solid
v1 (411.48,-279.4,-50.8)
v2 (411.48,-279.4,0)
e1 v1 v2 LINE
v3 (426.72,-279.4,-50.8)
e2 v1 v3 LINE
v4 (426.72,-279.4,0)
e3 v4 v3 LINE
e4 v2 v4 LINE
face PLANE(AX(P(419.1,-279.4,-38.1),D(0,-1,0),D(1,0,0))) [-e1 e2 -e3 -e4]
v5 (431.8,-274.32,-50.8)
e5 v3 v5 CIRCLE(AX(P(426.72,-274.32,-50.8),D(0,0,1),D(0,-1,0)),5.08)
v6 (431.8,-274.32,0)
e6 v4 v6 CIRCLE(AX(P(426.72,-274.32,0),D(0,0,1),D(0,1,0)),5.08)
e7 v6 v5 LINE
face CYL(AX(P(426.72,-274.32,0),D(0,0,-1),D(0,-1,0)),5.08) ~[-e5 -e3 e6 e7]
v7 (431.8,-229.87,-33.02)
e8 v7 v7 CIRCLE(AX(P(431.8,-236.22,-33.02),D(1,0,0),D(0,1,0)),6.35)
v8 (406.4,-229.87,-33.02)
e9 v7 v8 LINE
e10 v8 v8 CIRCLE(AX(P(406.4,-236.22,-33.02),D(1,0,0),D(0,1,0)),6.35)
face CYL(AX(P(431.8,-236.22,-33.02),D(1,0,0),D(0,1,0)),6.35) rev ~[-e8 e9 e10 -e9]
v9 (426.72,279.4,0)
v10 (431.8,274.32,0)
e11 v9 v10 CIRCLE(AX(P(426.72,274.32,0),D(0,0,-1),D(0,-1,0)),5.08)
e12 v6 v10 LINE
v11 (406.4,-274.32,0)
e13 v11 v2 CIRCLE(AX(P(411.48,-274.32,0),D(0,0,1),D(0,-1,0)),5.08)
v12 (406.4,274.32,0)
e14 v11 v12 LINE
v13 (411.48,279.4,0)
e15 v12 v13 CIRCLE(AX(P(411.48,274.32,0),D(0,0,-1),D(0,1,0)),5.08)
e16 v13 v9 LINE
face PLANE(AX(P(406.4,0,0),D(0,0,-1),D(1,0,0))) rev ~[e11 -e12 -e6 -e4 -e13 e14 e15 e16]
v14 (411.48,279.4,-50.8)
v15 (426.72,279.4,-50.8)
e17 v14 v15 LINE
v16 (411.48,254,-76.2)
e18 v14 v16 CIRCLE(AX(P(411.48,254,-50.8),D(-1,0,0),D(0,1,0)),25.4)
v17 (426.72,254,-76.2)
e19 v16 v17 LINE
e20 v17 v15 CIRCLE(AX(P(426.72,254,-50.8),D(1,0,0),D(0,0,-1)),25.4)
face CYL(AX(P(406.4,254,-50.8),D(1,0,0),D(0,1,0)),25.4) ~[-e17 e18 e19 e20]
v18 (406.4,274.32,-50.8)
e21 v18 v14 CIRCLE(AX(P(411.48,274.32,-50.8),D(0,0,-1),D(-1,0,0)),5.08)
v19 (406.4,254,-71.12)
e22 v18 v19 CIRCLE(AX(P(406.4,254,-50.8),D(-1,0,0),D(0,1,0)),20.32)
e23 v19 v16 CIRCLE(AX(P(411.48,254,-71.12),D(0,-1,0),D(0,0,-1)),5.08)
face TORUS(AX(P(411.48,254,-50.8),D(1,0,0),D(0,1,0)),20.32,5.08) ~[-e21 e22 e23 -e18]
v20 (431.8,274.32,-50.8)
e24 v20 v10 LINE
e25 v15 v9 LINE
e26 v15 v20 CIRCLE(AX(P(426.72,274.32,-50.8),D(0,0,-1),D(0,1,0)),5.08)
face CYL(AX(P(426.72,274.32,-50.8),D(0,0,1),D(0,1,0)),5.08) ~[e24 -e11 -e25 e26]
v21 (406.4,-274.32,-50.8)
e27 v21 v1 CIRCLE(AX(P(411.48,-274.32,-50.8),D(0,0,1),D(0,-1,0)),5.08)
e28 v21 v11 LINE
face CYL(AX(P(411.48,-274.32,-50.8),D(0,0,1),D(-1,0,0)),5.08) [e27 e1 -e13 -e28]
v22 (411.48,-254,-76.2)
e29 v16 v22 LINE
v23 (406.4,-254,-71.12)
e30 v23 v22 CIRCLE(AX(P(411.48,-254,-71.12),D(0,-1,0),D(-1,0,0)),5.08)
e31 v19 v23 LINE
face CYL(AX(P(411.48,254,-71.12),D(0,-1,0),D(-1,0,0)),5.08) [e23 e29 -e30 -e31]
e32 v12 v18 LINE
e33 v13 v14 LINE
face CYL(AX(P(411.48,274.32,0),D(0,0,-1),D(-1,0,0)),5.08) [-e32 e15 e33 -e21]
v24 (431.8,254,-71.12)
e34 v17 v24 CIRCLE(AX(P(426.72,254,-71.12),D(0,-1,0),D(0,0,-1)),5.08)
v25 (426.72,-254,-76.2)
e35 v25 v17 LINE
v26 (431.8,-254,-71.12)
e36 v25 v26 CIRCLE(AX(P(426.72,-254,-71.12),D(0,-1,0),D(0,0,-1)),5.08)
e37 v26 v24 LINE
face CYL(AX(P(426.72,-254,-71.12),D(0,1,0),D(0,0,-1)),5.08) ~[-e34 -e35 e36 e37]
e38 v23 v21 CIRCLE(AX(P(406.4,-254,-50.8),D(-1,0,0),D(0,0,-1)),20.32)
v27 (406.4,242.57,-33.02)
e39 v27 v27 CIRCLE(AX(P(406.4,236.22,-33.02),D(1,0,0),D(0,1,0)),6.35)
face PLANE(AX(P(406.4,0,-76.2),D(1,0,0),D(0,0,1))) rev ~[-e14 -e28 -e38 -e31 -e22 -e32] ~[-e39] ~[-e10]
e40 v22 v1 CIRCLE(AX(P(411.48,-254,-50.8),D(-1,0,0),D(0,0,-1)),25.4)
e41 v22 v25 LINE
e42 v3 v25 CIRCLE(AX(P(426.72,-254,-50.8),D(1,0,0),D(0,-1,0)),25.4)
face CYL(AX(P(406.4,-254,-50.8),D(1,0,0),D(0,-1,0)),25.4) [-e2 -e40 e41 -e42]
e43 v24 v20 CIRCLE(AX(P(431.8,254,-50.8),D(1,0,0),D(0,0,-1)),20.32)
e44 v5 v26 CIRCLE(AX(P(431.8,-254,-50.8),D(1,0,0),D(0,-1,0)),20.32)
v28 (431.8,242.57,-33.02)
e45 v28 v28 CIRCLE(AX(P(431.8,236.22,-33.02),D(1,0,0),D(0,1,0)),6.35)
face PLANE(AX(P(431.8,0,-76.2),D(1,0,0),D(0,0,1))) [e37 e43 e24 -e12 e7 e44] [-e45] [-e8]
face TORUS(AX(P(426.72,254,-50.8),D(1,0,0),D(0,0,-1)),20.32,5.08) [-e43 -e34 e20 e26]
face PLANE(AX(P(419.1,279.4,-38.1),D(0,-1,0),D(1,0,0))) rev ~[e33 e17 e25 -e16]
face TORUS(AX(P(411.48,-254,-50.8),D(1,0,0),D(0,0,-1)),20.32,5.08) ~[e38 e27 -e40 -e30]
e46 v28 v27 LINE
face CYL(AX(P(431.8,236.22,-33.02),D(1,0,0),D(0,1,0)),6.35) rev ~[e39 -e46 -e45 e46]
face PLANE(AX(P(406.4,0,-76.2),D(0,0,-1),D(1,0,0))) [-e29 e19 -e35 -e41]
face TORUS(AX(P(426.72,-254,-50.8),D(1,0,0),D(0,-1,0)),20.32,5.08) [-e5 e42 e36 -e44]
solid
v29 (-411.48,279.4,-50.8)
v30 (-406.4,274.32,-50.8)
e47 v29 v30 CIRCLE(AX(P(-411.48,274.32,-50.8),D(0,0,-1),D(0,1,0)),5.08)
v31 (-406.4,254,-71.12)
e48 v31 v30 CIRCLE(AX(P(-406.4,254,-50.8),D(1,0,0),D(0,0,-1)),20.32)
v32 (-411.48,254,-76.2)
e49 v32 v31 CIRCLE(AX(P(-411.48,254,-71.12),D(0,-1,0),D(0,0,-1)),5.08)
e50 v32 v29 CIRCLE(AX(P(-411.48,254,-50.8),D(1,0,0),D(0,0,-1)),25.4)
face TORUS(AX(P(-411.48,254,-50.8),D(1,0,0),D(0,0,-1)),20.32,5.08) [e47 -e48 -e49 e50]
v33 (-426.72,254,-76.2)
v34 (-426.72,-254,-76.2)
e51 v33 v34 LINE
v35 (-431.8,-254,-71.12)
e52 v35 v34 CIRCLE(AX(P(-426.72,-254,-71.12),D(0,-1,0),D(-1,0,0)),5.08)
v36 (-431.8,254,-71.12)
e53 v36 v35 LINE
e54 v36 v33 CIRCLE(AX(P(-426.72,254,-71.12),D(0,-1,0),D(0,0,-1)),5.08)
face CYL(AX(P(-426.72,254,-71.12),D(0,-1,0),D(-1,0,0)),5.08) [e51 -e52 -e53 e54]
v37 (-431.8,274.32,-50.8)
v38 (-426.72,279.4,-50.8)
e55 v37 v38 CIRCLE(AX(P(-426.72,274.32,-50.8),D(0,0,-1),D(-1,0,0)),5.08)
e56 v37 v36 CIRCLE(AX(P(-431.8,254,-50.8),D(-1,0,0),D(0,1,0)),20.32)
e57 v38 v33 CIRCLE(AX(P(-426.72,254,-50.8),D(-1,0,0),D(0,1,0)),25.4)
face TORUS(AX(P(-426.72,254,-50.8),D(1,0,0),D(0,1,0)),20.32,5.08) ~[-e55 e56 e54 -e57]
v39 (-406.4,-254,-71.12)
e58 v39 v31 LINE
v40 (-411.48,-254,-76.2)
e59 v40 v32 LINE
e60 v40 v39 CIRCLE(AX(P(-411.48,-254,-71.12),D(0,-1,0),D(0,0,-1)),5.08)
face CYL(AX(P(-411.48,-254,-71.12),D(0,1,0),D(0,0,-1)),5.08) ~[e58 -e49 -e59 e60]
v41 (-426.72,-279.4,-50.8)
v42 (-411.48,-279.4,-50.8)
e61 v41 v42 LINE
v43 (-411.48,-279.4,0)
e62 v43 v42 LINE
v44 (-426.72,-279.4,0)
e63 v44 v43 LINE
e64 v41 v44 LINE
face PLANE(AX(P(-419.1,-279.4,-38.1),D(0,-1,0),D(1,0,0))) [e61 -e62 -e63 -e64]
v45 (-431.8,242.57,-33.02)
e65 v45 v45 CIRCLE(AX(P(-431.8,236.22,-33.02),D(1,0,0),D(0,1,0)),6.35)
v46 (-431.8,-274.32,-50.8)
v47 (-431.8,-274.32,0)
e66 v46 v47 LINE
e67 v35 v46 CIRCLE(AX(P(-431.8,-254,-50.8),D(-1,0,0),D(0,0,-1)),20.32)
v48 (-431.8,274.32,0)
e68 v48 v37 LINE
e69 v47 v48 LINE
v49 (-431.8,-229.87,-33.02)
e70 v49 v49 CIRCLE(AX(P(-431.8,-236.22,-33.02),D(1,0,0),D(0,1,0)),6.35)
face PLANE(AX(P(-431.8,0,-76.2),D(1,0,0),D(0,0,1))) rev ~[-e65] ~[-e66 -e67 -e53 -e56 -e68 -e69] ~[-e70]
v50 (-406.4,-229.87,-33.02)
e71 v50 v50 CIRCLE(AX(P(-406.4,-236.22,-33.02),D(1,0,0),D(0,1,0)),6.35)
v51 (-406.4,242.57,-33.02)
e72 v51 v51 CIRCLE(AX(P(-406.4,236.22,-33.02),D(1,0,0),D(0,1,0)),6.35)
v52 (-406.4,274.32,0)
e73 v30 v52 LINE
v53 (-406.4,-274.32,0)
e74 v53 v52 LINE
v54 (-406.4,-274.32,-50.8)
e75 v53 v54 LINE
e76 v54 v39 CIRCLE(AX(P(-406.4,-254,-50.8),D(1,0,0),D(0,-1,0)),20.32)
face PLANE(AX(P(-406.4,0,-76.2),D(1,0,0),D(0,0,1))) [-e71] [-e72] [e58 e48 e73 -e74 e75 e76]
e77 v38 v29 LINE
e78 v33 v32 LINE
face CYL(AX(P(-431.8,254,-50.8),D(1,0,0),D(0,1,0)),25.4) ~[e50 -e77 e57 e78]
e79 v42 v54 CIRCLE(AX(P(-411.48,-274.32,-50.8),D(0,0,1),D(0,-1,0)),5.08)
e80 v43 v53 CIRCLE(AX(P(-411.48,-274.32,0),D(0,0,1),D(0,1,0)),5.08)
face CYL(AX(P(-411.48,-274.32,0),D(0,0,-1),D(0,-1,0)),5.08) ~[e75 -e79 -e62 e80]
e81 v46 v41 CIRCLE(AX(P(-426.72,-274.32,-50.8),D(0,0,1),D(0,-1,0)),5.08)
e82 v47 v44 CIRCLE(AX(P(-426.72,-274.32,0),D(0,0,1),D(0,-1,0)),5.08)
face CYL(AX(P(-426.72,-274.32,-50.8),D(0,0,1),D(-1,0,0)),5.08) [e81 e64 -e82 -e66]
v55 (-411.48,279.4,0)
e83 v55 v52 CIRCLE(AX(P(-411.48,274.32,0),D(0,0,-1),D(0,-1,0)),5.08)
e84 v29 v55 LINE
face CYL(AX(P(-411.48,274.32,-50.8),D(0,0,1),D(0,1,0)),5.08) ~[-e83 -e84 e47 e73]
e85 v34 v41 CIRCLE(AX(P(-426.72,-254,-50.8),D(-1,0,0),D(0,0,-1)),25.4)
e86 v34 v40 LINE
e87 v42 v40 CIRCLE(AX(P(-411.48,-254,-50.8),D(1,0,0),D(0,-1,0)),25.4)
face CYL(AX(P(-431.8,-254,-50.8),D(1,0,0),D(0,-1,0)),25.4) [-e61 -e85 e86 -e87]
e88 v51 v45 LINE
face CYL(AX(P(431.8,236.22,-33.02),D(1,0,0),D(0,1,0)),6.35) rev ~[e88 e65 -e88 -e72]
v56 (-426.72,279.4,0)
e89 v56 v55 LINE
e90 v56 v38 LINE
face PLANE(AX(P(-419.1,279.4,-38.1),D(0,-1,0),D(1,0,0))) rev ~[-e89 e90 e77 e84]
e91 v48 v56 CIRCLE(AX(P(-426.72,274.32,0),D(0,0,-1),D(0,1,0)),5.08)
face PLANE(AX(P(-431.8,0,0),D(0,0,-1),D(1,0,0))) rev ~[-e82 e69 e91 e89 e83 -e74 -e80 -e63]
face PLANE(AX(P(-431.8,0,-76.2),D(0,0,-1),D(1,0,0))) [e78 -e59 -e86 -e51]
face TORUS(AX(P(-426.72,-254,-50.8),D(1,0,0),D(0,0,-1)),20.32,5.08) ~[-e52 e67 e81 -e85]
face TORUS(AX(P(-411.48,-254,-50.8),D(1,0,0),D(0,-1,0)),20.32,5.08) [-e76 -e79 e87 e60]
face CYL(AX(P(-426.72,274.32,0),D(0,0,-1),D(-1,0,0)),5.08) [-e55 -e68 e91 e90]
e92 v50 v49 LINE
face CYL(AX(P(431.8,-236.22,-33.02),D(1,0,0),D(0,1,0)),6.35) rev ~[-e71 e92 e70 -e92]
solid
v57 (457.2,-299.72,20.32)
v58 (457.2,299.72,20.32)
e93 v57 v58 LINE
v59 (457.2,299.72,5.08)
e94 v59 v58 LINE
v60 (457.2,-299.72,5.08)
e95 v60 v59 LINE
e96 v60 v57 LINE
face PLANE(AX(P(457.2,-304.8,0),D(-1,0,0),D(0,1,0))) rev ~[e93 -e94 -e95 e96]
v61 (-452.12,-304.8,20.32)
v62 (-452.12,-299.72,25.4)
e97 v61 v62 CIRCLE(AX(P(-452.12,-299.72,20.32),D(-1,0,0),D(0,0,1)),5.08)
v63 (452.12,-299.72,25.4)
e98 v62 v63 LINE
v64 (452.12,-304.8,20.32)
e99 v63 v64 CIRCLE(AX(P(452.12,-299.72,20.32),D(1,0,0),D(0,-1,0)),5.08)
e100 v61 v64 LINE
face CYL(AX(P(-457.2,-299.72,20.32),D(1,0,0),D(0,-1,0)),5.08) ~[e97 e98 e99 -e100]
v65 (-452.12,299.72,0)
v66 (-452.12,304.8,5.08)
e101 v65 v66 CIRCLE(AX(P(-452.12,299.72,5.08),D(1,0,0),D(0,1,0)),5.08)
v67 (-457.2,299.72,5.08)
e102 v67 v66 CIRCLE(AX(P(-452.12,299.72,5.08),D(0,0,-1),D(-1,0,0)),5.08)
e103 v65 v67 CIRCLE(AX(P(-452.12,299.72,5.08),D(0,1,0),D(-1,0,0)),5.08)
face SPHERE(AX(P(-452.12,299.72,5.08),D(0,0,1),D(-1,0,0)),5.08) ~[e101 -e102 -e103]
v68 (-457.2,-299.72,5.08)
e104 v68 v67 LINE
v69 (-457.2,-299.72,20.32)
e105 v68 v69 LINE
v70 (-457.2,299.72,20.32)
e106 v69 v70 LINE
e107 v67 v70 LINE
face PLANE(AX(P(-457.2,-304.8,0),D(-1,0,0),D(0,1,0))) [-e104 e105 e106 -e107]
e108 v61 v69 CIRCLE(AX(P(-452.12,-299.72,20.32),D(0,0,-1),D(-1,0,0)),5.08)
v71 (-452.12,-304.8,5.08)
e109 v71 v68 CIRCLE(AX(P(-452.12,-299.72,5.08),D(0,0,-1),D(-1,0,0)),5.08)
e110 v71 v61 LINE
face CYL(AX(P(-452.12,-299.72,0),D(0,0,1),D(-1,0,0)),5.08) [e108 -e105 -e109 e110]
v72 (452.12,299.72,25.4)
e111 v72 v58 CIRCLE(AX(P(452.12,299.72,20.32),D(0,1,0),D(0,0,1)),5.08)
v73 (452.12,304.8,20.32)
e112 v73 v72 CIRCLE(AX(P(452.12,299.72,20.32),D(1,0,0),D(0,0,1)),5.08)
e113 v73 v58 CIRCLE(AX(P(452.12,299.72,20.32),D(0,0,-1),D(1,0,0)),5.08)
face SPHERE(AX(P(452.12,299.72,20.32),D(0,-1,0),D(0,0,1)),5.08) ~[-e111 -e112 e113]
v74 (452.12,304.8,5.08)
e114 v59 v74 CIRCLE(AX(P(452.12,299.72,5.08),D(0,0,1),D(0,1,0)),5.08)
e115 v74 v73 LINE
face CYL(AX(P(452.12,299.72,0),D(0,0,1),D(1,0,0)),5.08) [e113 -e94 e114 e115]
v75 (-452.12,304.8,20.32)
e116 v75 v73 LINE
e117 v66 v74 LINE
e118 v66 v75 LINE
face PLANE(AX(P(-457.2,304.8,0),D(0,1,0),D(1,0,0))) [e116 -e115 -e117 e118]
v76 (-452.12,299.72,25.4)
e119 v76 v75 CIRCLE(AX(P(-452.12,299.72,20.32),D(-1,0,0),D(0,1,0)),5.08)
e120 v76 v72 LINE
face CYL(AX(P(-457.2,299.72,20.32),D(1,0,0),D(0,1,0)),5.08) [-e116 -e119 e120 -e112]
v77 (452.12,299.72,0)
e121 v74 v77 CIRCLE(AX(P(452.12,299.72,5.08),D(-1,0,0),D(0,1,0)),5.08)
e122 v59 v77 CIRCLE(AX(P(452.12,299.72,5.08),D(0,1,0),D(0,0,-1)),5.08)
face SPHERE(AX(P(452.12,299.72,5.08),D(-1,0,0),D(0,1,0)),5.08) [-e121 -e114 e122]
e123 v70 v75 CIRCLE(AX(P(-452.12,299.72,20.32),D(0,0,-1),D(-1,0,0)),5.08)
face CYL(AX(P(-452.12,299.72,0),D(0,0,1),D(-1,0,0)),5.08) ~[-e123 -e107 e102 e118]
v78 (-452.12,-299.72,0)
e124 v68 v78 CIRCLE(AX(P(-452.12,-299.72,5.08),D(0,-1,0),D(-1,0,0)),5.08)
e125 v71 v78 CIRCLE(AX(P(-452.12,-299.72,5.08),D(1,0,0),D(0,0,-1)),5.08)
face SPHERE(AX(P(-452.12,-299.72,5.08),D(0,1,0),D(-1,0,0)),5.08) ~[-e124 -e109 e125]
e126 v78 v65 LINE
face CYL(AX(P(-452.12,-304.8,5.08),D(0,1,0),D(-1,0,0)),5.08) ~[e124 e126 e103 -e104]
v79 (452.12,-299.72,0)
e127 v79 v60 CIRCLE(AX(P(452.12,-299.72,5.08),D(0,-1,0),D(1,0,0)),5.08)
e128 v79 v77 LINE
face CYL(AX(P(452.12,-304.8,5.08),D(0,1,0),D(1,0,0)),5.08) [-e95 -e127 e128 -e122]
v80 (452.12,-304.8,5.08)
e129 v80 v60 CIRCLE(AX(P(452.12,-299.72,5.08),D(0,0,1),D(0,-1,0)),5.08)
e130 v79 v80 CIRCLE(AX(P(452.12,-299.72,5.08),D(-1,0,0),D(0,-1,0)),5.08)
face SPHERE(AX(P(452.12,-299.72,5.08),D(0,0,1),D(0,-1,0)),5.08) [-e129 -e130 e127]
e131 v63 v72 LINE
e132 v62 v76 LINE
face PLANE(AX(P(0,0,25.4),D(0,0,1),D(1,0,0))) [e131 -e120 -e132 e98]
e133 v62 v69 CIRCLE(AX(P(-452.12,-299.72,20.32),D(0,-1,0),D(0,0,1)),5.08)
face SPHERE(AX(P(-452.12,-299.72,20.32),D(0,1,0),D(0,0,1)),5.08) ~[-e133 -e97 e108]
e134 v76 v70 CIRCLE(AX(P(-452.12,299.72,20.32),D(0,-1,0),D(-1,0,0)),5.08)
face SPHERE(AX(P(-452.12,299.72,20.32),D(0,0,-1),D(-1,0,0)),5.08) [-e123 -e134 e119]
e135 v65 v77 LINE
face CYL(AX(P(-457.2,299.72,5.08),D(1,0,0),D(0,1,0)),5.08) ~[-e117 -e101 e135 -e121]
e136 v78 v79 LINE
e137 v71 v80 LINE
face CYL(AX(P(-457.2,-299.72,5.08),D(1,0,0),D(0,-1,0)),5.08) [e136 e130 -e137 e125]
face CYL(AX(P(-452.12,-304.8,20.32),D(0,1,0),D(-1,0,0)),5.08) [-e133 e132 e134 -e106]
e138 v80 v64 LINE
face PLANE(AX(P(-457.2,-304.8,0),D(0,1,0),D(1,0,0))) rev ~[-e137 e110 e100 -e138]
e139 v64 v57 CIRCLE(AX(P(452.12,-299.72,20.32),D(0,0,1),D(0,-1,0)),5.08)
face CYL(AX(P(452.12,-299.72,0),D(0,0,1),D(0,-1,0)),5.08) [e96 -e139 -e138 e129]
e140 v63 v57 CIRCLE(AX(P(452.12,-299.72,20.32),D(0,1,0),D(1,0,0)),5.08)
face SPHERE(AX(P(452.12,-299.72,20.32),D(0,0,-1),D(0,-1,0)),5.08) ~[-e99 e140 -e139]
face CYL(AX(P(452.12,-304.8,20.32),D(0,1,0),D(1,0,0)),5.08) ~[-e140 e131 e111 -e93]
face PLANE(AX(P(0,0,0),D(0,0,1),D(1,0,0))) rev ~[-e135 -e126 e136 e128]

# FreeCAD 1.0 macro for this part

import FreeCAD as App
import Part
import Sketcher
Q = App.Units.Quantity


def edges_at(feature, points):
    """Names of the edges that pass closest to the given points."""
    edges = feature.Shape.Edges
    near = lambda p: min(range(len(edges)), key=lambda i: edges[i].distToShape(Part.Vertex(*p))[0])
    return sorted({f"Edge{near(p) + 1}" for p in points})


def add_polygon(sketch, points):
    """Adds a closed chain of lines whose ends are joined by coincident constraints."""
    first, n = sketch.GeometryCount, len(points)
    for a, b in zip(points, points[1:] + points[:1]):
        sketch.addGeometry(Part.LineSegment(App.Vector(*a, 0), App.Vector(*b, 0)), False)
    for i in range(n):
        sketch.addConstraint(Sketcher.Constraint("Coincident", first + i, 2, first + (i + 1) % n, 1))

doc = App.newDocument("Part")
params = doc.addObject("Spreadsheet::Sheet", "Params")
for row, (alias, value) in enumerate([
    ("sketch1_width", "36 in"),
    ("sketch1_height", "24 in"),
    ("pad1_length", "1 in"),
    ("fillet_radius", "0.2 in"),
    ("sketch2_width", "1 in"),
    ("sketch2_height", "3 in"),
    ("pad2_length", "22 in"),
    ("fillet2_radius", "1 in"),
    ("fillet3_radius", "0.2 in"),
    ("sketch3_width", "1 in"),
    ("sketch3_height", "3 in"),
    ("pad3_length", "22 in"),
    ("fillet4_radius", "1 in"),
    ("fillet5_radius", "0.2 in"),
    ("sketch4_diameter", "0.5 in"),
    ("pad4_length", "34 in"),
], start=1):
    params.set(f"A{row}", alias)
    params.set(f"B{row}", "=" + value)
    params.setAlias(f"B{row}", alias)

body = doc.addObject("PartDesign::Body", "Body")

# Sketch on XY plane
sketch1 = body.newObject("Sketcher::SketchObject", "Sketch")
sketch1.AttachmentSupport = (doc.getObject("XY_Plane"), [""])
sketch1.MapMode = "FlatFace"
add_polygon(sketch1, [(-457, 305), (-457, -305), (457, -305), (457, 305)])  # lines 0-3
sketch1.addConstraint(Sketcher.Constraint("Vertical", 0))
sketch1.addConstraint(Sketcher.Constraint("Horizontal", 1))
sketch1.addConstraint(Sketcher.Constraint("Vertical", 2))
sketch1.addConstraint(Sketcher.Constraint("Horizontal", 3))
sketch1.addConstraint(Sketcher.Constraint("Symmetric", 0, 2, 2, 2, -1, 1))
sketch1.addConstraint(Sketcher.Constraint("DistanceX", 1, 1, 1, 2, Q("36 in")))
sketch1.addConstraint(Sketcher.Constraint("DistanceY", 0, 2, 0, 1, Q("24 in")))
sketch1.setExpression("Constraints[9]", "Params.sketch1_width")
sketch1.setExpression("Constraints[10]", "Params.sketch1_height")
pad1 = body.newObject("PartDesign::Pad", "Pad")
pad1.Profile = sketch1
pad1.setExpression("Length", "Params.pad1_length")
doc.recompute()

fillet = body.newObject("PartDesign::Fillet", "Fillet")
fillet.Base = (pad1, ["Edge1"])
fillet.UseAllEdges = True
fillet.setExpression("Radius", "Params.fillet_radius")
body2 = doc.addObject("PartDesign::Body", "Body001")

# Sketch on XZ plane
sketch2 = body2.newObject("Sketcher::SketchObject", "Sketch001")
sketch2.AttachmentSupport = (doc.getObject("XZ_Plane001"), [""])
sketch2.MapMode = "FlatFace"
add_polygon(sketch2, [(-432, 0), (-432, -76), (-406, -76), (-406, 0)])  # lines 0-3
sketch2.addConstraint(Sketcher.Constraint("Vertical", 0))
sketch2.addConstraint(Sketcher.Constraint("Horizontal", 1))
sketch2.addConstraint(Sketcher.Constraint("Vertical", 2))
sketch2.addConstraint(Sketcher.Constraint("Horizontal", 3))
sketch2.addConstraint(Sketcher.Constraint("PointOnObject", 2, 2, -1))
sketch2.addConstraint(Sketcher.Constraint("DistanceX", 1, 1, 1, 2, Q("1 in")))
sketch2.addConstraint(Sketcher.Constraint("DistanceY", 0, 2, 0, 1, Q("3 in")))
sketch2.addConstraint(Sketcher.Constraint("DistanceX", 0, 2, -1, 1, Q("17 in")))
sketch2.setExpression("Constraints[9]", "Params.sketch2_width")
sketch2.setExpression("Constraints[10]", "Params.sketch2_height")
pad2 = body2.newObject("PartDesign::Pad", "Pad001")
pad2.Profile = sketch2
pad2.setExpression("Length", "Params.pad2_length")
pad2.Midplane = True
doc.recompute()

fillet2 = body2.newObject("PartDesign::Fillet", "Fillet001")
fillet2.Base = (pad2, edges_at(pad2, [(-419.1, -279.4, -76.2), (-419.1, 279.4, -76.2)]))
fillet2.setExpression("Radius", "Params.fillet2_radius")
doc.recompute()

fillet3 = body2.newObject("PartDesign::Fillet", "Fillet002")
fillet3.Base = (fillet2, edges_at(fillet2, [
    (-406.4, -271.961, -68.761),
    (-406.4, 271.961, -68.761),
    (-431.8, 271.961, -68.761),
    (-431.8, -271.961, -68.761),
    (-406.4, 279.4, -25.4),
    (-406.4, 0, -76.2),
    (-406.4, -279.4, -25.4),
    (-419.1, -279.4, -50.8),
    (-419.1, 279.4, -50.8),
    (-431.8, 279.4, -25.4),
    (-419.1, -254, -76.2),
    (-431.8, -279.4, -25.4),
    (-419.1, 254, -76.2),
    (-431.8, 0, -76.2),
]))
fillet3.setExpression("Radius", "Params.fillet3_radius")
body3 = doc.addObject("PartDesign::Body", "Body002")

# Sketch on XZ plane
sketch3 = body3.newObject("Sketcher::SketchObject", "Sketch002")
sketch3.AttachmentSupport = (doc.getObject("XZ_Plane002"), [""])
sketch3.MapMode = "FlatFace"
add_polygon(sketch3, [(406, 0), (406, -76), (432, -76), (432, 0)])  # lines 0-3
sketch3.addConstraint(Sketcher.Constraint("Vertical", 0))
sketch3.addConstraint(Sketcher.Constraint("Horizontal", 1))
sketch3.addConstraint(Sketcher.Constraint("Vertical", 2))
sketch3.addConstraint(Sketcher.Constraint("Horizontal", 3))
sketch3.addConstraint(Sketcher.Constraint("PointOnObject", 2, 2, -1))
sketch3.addConstraint(Sketcher.Constraint("DistanceX", 1, 1, 1, 2, Q("1 in")))
sketch3.addConstraint(Sketcher.Constraint("DistanceY", 0, 2, 0, 1, Q("3 in")))
sketch3.addConstraint(Sketcher.Constraint("DistanceX", -1, 1, 0, 2, Q("16 in")))
sketch3.setExpression("Constraints[9]", "Params.sketch3_width")
sketch3.setExpression("Constraints[10]", "Params.sketch3_height")
pad3 = body3.newObject("PartDesign::Pad", "Pad002")
pad3.Profile = sketch3
pad3.setExpression("Length", "Params.pad3_length")
pad3.Midplane = True
doc.recompute()

fillet4 = body3.newObject("PartDesign::Fillet", "Fillet003")
fillet4.Base = (pad3, edges_at(pad3, [(419.1, -279.4, -76.2), (419.1, 279.4, -76.2)]))
fillet4.setExpression("Radius", "Params.fillet4_radius")
doc.recompute()

fillet5 = body3.newObject("PartDesign::Fillet", "Fillet004")
fillet5.Base = (fillet4, edges_at(fillet4, [
    (431.8, -271.961, -68.761),
    (431.8, 271.961, -68.761),
    (431.8, -279.4, -25.4),
    (431.8, 279.4, -25.4),
    (406.4, 271.961, -68.761),
    (431.8, 0, -76.2),
    (406.4, -271.961, -68.761),
    (406.4, 0, -76.2),
    (406.4, -279.4, -25.4),
    (419.1, -254, -76.2),
    (419.1, 254, -76.2),
    (406.4, 279.4, -25.4),
    (419.1, 279.4, -50.8),
    (419.1, -279.4, -50.8),
]))
fillet5.setExpression("Radius", "Params.fillet5_radius")
body4 = doc.addObject("PartDesign::Body", "Body003")
body4.AllowCompound = True

# Sketch on YZ plane
sketch4 = body4.newObject("Sketcher::SketchObject", "Sketch003")
sketch4.AttachmentSupport = (doc.getObject("YZ_Plane003"), [""])
sketch4.MapMode = "FlatFace"
sketch4.AttachmentOffset = App.Placement(App.Vector(0, 0, 17 * 25.4), App.Rotation())
sketch4.addGeometry(Part.Circle(App.Vector(-236, -33, 0), App.Vector(0, 0, 1), 6), False)
sketch4.addGeometry(Part.Circle(App.Vector(236, -33, 0), App.Vector(0, 0, 1), 6), False)
sketch4.addConstraint(Sketcher.Constraint("Equal", 0, 1))
sketch4.addConstraint(Sketcher.Constraint("Symmetric", 0, 3, 1, 3, -2))
sketch4.addConstraint(Sketcher.Constraint("Diameter", 0, Q("0.5 in")))
sketch4.addConstraint(Sketcher.Constraint("DistanceX", 0, 3, -1, 1, Q("9.3 in")))
sketch4.addConstraint(Sketcher.Constraint("DistanceY", 0, 3, -1, 1, Q("1.3 in")))
sketch4.setExpression("Constraints[2]", "Params.sketch4_diameter")
pad4 = body4.newObject("PartDesign::Pad", "Pad003")
pad4.Profile = sketch4
pad4.setExpression("Length", "Params.pad4_length")
pad4.Reversed = True
doc.recompute()

body5 = doc.addObject("PartDesign::Body", "Body004")
body5.BaseFeature = body4
boolean = body2.newObject("PartDesign::Boolean", "Boolean")
boolean.Type = "Cut"
boolean.addObjects([body5])
doc.recompute()

boolean2 = body3.newObject("PartDesign::Boolean", "Boolean001")
boolean2.Type = "Cut"
boolean2.addObjects([body4])

doc.recompute()
